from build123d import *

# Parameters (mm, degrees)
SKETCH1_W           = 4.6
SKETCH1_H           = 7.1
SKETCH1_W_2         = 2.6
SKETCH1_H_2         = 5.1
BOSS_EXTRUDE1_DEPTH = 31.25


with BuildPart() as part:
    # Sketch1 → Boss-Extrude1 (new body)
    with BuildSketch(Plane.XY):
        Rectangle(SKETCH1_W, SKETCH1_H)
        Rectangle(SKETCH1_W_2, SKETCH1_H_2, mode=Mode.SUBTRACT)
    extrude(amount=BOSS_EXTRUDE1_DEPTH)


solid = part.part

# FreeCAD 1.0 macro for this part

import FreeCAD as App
import Part
import Sketcher

V = App.Vector
Q = App.Units.Quantity


def add_polygon(sketch, points):
    """Adds a closed chain of lines whose ends are joined by coincident constraints."""
    first, n = sketch.GeometryCount, len(points)
    for a, b in zip(points, points[1:] + points[:1]):
        sketch.addGeometry(Part.LineSegment(App.Vector(*a, 0), App.Vector(*b, 0)), False)
    for i in range(n):
        sketch.addConstraint(Sketcher.Constraint("Coincident", first + i, 2, first + (i + 1) % n, 1))

doc = App.newDocument("Part")
params = doc.addObject("Spreadsheet::Sheet", "Params")
for row, (alias, value) in enumerate([
    ("sketch1_width", "4.6 mm"),
    ("sketch1_width2", "2.6 mm"),
    ("sketch1_height", "7.1 mm"),
    ("sketch1_height2", "5.1 mm"),
    ("pad1_length", "31.25 mm"),
], start=1):
    params.set(f"A{row}", alias)
    params.set(f"B{row}", "=" + value)
    params.setAlias(f"B{row}", alias)

body = doc.addObject("PartDesign::Body", "Body")

# Sketch on XY plane
sketch1 = doc.addObject("Sketcher::SketchObject", "Sketch")
body.addObject(sketch1)
sketch1.AttachmentSupport = (doc.XY_Plane, [""])
sketch1.MapMode = "FlatFace"
add_polygon(sketch1, [(-2.3, 3.5), (-2.3, -3.5), (2.3, -3.5), (2.3, 3.5)])  # lines 0-3
add_polygon(sketch1, [(1.3, -2.5), (-1.3, -2.5), (-1.3, 2.5), (1.3, 2.5)])  # lines 4-7
sketch1.addConstraint([
    Sketcher.Constraint("Vertical", 0),
    Sketcher.Constraint("Horizontal", 1),
    Sketcher.Constraint("Vertical", 2),
    Sketcher.Constraint("Horizontal", 3),
    Sketcher.Constraint("Horizontal", 4),
    Sketcher.Constraint("Vertical", 5),
    Sketcher.Constraint("Horizontal", 6),
    Sketcher.Constraint("Vertical", 7),
    Sketcher.Constraint("Symmetric", 0, 2, 2, 2, -1, 1),
    Sketcher.Constraint("Symmetric", 4, 2, 6, 2, -1, 1),
    Sketcher.Constraint("DistanceX", 1, 1, 1, 2, Q("4.6 mm")),
    Sketcher.Constraint("DistanceX", 4, 2, 4, 1, Q("2.6 mm")),
    Sketcher.Constraint("DistanceY", 0, 2, 0, 1, Q("7.1 mm")),
    Sketcher.Constraint("DistanceY", 5, 1, 5, 2, Q("5.1 mm")),
])
sketch1.setExpression("Constraints[18]", "Params.sketch1_width")
sketch1.setExpression("Constraints[19]", "Params.sketch1_width2")
sketch1.setExpression("Constraints[20]", "Params.sketch1_height")
sketch1.setExpression("Constraints[21]", "Params.sketch1_height2")
pad1 = doc.addObject("PartDesign::Pad", "Pad")
body.addObject(pad1)
pad1.Profile = sketch1
pad1.setExpression("Length", "Params.pad1_length")

doc.recompute()
